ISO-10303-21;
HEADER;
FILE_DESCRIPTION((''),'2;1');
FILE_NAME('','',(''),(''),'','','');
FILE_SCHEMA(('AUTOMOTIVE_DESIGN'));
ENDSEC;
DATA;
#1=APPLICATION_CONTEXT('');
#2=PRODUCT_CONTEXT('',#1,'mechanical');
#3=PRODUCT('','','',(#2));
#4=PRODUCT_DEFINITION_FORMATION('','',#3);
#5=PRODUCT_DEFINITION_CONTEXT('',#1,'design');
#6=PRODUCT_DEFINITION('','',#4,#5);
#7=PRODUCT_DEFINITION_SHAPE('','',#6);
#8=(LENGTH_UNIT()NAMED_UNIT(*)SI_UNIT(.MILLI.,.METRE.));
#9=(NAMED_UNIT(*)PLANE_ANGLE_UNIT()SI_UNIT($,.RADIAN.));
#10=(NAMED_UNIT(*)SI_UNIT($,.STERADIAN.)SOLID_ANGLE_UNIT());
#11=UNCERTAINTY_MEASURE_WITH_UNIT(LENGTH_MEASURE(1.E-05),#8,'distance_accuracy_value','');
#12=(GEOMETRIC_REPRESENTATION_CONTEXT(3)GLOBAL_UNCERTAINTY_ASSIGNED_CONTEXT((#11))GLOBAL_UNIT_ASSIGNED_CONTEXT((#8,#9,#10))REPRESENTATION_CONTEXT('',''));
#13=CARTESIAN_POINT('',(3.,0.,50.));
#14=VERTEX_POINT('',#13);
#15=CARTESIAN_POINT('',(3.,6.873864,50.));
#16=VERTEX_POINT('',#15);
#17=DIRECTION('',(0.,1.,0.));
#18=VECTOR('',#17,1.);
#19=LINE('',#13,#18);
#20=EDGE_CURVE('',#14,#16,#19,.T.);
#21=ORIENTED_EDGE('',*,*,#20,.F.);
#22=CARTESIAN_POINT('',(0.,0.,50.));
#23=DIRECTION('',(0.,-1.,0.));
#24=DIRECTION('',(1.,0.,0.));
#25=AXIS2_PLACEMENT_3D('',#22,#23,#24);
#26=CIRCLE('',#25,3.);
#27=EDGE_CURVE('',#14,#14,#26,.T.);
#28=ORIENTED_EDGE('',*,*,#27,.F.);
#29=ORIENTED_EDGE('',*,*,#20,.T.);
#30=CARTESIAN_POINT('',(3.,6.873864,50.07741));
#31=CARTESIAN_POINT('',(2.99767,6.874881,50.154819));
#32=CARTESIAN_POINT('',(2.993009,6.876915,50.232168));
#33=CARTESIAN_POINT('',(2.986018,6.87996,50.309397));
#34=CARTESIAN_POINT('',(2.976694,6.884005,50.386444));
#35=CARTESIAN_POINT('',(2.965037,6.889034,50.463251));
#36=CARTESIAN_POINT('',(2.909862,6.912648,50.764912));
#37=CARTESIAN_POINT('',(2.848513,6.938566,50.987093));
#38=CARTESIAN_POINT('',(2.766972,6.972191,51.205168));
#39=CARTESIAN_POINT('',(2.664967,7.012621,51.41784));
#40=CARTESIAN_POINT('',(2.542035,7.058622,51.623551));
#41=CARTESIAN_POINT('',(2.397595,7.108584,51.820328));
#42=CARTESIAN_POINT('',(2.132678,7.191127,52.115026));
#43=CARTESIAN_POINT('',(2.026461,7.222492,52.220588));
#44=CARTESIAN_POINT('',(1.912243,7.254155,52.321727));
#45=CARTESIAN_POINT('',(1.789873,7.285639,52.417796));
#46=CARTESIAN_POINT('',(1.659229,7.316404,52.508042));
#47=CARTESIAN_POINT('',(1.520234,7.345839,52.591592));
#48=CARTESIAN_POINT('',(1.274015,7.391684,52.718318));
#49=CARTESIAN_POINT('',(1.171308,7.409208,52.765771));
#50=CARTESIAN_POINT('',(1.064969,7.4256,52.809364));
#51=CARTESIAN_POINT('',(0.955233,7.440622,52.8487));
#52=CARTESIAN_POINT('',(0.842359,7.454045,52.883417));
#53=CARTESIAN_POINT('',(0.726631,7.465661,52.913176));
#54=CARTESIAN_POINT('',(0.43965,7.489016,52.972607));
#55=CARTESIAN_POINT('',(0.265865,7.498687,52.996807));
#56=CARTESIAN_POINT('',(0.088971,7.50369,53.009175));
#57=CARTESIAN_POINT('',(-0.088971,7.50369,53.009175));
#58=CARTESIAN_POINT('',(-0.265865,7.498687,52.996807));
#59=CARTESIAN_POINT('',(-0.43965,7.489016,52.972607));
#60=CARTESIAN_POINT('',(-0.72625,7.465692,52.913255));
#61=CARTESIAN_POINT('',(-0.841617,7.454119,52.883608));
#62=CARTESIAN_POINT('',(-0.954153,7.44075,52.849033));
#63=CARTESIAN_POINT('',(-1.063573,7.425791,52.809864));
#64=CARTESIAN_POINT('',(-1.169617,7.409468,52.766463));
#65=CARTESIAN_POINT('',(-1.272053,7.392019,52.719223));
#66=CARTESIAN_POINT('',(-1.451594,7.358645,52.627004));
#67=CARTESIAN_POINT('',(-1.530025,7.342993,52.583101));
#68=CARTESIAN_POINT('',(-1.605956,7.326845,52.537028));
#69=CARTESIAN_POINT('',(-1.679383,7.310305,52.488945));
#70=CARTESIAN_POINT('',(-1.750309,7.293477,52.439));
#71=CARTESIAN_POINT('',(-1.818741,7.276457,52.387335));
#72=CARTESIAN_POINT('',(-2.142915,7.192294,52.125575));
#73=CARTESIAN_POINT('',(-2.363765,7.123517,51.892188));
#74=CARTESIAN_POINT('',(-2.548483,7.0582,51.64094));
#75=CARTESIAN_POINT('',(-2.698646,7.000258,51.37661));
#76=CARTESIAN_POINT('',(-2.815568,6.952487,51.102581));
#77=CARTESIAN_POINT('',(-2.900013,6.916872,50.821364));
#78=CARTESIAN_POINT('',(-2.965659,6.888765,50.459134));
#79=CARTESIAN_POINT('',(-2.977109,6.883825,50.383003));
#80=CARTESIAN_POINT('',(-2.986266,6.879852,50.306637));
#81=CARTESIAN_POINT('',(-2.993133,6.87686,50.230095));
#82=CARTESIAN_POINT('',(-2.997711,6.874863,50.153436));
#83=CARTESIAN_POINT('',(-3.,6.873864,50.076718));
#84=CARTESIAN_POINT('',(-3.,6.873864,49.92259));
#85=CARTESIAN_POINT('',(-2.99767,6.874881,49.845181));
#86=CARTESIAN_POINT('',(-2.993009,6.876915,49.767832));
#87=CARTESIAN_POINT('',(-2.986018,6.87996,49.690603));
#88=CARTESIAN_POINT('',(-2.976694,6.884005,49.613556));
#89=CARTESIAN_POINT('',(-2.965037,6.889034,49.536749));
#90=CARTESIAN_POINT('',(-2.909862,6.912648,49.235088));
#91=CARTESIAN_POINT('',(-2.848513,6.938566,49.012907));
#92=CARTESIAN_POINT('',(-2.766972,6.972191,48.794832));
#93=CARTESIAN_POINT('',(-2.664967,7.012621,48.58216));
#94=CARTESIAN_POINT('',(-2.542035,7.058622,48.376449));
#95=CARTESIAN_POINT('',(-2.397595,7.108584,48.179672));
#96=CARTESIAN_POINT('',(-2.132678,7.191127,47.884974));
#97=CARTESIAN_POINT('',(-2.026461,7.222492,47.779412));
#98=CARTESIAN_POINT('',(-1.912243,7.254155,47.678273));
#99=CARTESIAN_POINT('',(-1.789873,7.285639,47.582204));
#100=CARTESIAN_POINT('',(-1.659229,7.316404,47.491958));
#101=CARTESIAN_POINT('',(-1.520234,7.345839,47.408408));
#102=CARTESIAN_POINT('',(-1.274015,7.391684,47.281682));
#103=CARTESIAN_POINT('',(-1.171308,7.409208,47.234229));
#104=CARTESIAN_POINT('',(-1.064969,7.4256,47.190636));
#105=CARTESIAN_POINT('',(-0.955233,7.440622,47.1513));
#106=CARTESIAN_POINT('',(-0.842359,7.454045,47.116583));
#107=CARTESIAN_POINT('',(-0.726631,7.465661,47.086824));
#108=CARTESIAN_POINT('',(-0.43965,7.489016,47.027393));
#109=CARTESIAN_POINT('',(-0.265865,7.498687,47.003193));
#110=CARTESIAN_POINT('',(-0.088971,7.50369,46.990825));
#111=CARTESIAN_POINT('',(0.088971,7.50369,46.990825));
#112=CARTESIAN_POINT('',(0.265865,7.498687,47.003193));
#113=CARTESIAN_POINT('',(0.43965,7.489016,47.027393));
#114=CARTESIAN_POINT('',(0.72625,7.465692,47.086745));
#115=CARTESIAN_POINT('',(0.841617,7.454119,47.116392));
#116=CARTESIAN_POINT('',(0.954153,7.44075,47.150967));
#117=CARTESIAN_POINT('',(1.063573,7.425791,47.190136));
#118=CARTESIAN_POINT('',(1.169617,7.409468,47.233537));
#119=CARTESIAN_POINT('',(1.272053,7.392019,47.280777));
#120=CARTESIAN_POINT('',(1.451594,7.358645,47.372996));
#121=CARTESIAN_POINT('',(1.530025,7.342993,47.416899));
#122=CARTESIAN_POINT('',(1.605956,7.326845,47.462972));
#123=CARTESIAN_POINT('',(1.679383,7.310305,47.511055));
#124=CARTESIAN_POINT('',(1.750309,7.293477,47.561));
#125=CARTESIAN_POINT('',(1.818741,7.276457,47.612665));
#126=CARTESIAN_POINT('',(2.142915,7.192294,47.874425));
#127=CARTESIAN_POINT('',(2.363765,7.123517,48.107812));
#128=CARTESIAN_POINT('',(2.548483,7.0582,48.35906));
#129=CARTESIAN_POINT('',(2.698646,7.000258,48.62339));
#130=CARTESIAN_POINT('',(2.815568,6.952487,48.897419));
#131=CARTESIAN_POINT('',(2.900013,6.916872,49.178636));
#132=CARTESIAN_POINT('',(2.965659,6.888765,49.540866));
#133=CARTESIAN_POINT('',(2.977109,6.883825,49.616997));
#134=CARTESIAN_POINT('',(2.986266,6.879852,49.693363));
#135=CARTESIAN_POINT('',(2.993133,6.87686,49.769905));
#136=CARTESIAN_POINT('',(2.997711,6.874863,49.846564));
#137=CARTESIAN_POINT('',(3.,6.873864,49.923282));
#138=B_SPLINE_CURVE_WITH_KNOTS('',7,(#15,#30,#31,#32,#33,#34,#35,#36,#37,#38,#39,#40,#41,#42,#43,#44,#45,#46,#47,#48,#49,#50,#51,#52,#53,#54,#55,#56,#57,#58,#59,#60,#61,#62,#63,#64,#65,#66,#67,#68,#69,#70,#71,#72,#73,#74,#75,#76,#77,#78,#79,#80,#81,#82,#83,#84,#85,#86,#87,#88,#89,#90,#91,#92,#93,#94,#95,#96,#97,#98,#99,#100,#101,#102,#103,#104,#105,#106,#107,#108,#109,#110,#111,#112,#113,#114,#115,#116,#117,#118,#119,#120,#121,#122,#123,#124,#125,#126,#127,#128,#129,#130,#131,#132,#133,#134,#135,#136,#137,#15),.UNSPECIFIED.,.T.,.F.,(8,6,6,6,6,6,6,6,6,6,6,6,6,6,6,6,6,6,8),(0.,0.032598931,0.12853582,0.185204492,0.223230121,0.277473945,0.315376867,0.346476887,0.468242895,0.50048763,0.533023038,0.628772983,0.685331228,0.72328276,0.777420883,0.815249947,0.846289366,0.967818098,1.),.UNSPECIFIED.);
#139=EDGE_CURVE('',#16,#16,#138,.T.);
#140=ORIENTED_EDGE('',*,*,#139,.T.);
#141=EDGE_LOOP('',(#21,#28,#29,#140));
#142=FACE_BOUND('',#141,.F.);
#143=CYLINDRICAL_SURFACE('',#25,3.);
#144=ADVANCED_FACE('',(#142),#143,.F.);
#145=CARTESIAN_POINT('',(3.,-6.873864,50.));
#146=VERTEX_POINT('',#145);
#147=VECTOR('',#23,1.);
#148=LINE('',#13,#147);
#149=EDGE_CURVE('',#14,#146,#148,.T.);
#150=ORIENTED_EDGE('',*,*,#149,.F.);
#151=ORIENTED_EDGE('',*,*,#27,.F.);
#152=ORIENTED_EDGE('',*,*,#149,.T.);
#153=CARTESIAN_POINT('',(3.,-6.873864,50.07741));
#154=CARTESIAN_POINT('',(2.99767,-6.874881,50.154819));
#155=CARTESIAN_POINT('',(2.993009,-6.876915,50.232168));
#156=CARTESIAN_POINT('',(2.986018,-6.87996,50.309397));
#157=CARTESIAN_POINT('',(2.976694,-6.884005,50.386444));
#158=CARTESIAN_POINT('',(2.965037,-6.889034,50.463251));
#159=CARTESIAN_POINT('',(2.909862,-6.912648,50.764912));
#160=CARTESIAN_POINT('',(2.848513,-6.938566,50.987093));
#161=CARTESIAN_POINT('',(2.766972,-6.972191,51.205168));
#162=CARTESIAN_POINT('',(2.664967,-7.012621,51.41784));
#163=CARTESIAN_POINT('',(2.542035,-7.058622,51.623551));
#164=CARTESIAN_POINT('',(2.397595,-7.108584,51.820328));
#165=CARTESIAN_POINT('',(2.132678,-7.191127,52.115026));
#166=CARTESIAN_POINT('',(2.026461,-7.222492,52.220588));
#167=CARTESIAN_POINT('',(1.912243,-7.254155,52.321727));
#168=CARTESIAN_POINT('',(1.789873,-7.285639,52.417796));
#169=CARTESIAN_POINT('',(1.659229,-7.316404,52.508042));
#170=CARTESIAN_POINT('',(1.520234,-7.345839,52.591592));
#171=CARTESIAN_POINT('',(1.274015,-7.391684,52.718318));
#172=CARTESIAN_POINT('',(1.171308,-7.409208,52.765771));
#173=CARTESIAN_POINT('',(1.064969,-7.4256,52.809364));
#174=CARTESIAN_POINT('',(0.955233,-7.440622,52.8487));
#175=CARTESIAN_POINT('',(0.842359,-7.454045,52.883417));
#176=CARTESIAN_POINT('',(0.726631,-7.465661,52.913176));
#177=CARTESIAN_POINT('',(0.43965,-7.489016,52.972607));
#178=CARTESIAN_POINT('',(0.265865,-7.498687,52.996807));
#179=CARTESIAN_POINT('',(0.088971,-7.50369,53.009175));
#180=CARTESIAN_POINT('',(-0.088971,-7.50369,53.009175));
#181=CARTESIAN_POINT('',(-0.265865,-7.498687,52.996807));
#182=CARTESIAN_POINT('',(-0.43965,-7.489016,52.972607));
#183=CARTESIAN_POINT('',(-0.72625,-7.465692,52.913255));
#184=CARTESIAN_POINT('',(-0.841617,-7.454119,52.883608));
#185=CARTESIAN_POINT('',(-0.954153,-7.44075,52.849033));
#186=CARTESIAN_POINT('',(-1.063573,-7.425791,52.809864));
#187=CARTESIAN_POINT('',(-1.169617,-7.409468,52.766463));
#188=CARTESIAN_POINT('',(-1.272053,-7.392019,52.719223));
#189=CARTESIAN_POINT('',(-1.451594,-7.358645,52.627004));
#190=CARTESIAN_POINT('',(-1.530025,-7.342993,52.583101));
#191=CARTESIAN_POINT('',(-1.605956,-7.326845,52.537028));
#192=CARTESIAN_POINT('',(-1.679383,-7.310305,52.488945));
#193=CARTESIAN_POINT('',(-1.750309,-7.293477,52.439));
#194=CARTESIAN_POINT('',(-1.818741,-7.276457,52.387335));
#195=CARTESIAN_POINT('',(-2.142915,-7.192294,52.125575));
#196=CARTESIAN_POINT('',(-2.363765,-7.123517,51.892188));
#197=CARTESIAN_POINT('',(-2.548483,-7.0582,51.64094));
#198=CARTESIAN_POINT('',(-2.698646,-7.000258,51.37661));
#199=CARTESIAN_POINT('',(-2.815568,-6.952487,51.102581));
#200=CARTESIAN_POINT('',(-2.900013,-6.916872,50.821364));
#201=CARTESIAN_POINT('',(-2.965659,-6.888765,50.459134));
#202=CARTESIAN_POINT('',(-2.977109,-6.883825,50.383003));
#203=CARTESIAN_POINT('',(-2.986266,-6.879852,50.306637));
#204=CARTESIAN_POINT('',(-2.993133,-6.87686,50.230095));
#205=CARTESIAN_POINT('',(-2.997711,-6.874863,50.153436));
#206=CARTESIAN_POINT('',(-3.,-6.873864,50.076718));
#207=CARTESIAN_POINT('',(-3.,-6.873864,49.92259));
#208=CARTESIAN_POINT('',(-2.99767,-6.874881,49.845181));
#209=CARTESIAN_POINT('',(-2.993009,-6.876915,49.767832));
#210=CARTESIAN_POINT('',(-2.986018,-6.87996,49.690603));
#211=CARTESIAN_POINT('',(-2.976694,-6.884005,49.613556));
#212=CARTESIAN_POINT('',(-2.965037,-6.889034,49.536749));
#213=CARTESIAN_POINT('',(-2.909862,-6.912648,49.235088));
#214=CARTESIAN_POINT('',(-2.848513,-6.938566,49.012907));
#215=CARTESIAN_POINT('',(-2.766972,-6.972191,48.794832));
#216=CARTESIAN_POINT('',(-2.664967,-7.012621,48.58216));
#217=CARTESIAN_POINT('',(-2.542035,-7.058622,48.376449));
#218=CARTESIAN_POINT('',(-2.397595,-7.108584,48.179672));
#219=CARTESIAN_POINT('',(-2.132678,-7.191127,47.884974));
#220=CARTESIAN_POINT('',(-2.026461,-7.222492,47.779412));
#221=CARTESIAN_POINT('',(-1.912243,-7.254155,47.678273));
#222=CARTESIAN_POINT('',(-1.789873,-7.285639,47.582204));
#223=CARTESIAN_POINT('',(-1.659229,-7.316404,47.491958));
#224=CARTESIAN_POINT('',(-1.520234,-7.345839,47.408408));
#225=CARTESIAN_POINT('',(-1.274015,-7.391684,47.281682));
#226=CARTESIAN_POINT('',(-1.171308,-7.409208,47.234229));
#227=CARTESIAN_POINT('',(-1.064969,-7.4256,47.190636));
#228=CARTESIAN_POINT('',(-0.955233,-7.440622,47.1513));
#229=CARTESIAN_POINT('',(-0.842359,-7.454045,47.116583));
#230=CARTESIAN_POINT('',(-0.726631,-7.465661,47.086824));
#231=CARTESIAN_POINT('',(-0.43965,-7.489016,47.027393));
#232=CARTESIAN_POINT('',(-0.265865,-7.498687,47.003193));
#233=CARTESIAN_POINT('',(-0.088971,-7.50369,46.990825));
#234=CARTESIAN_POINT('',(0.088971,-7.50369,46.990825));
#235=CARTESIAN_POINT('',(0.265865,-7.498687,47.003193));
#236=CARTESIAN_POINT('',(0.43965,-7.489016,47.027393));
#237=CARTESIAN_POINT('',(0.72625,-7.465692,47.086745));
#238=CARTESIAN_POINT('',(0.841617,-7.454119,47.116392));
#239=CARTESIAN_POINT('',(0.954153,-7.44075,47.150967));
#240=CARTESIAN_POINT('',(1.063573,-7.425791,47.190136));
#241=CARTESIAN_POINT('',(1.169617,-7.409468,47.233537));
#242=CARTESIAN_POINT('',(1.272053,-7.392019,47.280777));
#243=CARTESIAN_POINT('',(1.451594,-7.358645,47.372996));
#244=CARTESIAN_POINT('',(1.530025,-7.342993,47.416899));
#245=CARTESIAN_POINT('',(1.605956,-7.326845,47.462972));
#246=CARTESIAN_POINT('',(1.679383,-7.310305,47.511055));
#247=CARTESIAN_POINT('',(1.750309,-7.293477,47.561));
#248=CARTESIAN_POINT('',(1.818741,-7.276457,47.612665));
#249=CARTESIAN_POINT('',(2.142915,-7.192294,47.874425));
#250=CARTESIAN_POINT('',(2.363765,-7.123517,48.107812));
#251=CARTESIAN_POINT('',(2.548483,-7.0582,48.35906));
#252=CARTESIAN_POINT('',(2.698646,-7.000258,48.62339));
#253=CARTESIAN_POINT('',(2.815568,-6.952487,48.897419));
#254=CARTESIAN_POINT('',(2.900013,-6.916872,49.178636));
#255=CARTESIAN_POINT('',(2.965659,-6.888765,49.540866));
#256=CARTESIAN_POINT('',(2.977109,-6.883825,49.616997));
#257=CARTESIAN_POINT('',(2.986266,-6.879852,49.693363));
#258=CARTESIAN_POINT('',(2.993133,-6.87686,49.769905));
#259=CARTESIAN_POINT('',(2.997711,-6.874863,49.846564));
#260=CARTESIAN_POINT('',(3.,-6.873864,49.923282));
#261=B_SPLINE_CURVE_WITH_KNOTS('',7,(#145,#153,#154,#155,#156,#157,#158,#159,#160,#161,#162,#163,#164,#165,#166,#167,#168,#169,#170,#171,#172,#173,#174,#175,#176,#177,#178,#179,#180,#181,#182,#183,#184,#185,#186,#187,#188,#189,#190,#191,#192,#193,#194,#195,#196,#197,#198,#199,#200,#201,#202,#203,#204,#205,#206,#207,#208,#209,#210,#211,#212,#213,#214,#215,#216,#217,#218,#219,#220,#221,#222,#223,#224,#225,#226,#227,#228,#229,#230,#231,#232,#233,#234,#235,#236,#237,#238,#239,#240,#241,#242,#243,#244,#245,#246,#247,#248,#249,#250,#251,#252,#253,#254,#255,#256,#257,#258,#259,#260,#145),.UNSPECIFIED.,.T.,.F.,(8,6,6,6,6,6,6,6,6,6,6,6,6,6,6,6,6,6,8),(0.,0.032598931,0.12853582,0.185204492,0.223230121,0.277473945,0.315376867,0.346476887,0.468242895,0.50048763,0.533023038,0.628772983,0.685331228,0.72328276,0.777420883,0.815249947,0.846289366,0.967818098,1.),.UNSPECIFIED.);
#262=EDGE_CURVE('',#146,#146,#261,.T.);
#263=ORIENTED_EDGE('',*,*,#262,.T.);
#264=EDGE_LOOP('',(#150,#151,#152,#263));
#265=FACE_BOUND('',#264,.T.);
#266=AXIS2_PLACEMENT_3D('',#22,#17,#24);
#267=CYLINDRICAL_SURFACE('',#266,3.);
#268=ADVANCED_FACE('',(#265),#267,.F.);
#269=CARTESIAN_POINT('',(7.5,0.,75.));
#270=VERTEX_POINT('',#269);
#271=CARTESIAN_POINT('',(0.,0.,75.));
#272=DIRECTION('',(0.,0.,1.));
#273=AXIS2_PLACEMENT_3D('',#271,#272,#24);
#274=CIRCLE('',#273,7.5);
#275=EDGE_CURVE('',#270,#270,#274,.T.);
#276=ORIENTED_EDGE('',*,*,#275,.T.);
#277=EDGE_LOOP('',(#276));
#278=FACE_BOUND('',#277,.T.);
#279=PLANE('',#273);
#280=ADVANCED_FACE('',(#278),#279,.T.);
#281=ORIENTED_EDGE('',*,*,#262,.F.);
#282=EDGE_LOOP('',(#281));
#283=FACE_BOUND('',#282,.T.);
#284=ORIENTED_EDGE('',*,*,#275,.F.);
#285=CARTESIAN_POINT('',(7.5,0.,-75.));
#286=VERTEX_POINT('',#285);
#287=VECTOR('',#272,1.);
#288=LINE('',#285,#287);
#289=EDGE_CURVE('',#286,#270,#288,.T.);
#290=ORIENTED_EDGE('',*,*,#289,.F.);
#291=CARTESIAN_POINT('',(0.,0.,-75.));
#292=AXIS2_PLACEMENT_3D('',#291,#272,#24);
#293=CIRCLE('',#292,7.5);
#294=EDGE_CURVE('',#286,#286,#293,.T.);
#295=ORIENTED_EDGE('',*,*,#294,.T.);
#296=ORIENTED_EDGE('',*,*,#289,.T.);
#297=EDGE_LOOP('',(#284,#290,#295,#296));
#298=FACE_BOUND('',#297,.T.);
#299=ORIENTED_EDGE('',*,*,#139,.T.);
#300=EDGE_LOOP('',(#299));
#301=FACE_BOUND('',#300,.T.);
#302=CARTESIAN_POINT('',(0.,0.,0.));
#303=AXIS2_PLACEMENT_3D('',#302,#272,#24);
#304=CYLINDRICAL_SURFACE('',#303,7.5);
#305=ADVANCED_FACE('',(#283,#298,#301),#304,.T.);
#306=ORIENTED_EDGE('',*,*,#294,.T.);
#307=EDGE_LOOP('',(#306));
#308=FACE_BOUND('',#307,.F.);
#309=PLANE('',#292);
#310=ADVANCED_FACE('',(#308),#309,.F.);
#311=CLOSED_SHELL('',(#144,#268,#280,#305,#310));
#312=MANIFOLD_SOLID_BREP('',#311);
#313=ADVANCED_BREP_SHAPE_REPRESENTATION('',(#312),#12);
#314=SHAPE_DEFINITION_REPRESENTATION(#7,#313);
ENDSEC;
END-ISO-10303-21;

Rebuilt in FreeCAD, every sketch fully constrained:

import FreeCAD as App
import Part
import Sketcher
from FreeCAD import Vector

doc = App.newDocument("Part")
params = doc.addObject("Spreadsheet::Sheet", "Params")
for row, (alias, value) in enumerate([
    ("sketch1_diameter", "15 mm"),
    ("pad1_length", "150 mm"),
    ("sketch2_diameter", "6 mm"),
], start=1):
    params.set(f"A{row}", alias)
    params.set(f"B{row}", "=" + value)
    params.setAlias(f"B{row}", alias)

body = doc.addObject("PartDesign::Body", "Body")

# Sketch on XY plane
sketch1 = doc.addObject("Sketcher::SketchObject", "Sketch")
body.addObject(sketch1)
sketch1.AttachmentSupport = (doc.XY_Plane, [""])
sketch1.MapMode = "FlatFace"
sketch1.addGeometry(Part.Circle(Vector(0, 0, 0), Vector(0, 0, 1), 8), False)
sketch1.addConstraint([
    Sketcher.Constraint("Coincident", 0, 3, -1, 1),
    Sketcher.Constraint("Diameter", 0, 15.0),
])
sketch1.setExpression("Constraints[1]", "Params.sketch1_diameter")
pad1 = doc.addObject("PartDesign::Pad", "Pad")
body.addObject(pad1)
pad1.Profile = sketch1
pad1.setExpression("Length", "Params.pad1_length")
pad1.Midplane = True

# Sketch on XZ plane
sketch2 = doc.addObject("Sketcher::SketchObject", "Sketch001")
body.addObject(sketch2)
sketch2.AttachmentSupport = (doc.XZ_Plane, [""])
sketch2.MapMode = "FlatFace"
sketch2.addGeometry(Part.Circle(Vector(0, 50, 0), Vector(0, 0, 1), 3), False)
sketch2.addConstraint([
    Sketcher.Constraint("PointOnObject", 0, 3, -2),
    Sketcher.Constraint("Diameter", 0, 6.0),
    Sketcher.Constraint("DistanceY", -1, 1, 0, 3, 50.0),
])
sketch2.setExpression("Constraints[1]", "Params.sketch2_diameter")
pocket1 = doc.addObject("PartDesign::Pocket", "Pocket")
body.addObject(pocket1)
pocket1.Profile = sketch2
pocket1.Type = "ThroughAll"
pocket1.Midplane = True

doc.recompute()
